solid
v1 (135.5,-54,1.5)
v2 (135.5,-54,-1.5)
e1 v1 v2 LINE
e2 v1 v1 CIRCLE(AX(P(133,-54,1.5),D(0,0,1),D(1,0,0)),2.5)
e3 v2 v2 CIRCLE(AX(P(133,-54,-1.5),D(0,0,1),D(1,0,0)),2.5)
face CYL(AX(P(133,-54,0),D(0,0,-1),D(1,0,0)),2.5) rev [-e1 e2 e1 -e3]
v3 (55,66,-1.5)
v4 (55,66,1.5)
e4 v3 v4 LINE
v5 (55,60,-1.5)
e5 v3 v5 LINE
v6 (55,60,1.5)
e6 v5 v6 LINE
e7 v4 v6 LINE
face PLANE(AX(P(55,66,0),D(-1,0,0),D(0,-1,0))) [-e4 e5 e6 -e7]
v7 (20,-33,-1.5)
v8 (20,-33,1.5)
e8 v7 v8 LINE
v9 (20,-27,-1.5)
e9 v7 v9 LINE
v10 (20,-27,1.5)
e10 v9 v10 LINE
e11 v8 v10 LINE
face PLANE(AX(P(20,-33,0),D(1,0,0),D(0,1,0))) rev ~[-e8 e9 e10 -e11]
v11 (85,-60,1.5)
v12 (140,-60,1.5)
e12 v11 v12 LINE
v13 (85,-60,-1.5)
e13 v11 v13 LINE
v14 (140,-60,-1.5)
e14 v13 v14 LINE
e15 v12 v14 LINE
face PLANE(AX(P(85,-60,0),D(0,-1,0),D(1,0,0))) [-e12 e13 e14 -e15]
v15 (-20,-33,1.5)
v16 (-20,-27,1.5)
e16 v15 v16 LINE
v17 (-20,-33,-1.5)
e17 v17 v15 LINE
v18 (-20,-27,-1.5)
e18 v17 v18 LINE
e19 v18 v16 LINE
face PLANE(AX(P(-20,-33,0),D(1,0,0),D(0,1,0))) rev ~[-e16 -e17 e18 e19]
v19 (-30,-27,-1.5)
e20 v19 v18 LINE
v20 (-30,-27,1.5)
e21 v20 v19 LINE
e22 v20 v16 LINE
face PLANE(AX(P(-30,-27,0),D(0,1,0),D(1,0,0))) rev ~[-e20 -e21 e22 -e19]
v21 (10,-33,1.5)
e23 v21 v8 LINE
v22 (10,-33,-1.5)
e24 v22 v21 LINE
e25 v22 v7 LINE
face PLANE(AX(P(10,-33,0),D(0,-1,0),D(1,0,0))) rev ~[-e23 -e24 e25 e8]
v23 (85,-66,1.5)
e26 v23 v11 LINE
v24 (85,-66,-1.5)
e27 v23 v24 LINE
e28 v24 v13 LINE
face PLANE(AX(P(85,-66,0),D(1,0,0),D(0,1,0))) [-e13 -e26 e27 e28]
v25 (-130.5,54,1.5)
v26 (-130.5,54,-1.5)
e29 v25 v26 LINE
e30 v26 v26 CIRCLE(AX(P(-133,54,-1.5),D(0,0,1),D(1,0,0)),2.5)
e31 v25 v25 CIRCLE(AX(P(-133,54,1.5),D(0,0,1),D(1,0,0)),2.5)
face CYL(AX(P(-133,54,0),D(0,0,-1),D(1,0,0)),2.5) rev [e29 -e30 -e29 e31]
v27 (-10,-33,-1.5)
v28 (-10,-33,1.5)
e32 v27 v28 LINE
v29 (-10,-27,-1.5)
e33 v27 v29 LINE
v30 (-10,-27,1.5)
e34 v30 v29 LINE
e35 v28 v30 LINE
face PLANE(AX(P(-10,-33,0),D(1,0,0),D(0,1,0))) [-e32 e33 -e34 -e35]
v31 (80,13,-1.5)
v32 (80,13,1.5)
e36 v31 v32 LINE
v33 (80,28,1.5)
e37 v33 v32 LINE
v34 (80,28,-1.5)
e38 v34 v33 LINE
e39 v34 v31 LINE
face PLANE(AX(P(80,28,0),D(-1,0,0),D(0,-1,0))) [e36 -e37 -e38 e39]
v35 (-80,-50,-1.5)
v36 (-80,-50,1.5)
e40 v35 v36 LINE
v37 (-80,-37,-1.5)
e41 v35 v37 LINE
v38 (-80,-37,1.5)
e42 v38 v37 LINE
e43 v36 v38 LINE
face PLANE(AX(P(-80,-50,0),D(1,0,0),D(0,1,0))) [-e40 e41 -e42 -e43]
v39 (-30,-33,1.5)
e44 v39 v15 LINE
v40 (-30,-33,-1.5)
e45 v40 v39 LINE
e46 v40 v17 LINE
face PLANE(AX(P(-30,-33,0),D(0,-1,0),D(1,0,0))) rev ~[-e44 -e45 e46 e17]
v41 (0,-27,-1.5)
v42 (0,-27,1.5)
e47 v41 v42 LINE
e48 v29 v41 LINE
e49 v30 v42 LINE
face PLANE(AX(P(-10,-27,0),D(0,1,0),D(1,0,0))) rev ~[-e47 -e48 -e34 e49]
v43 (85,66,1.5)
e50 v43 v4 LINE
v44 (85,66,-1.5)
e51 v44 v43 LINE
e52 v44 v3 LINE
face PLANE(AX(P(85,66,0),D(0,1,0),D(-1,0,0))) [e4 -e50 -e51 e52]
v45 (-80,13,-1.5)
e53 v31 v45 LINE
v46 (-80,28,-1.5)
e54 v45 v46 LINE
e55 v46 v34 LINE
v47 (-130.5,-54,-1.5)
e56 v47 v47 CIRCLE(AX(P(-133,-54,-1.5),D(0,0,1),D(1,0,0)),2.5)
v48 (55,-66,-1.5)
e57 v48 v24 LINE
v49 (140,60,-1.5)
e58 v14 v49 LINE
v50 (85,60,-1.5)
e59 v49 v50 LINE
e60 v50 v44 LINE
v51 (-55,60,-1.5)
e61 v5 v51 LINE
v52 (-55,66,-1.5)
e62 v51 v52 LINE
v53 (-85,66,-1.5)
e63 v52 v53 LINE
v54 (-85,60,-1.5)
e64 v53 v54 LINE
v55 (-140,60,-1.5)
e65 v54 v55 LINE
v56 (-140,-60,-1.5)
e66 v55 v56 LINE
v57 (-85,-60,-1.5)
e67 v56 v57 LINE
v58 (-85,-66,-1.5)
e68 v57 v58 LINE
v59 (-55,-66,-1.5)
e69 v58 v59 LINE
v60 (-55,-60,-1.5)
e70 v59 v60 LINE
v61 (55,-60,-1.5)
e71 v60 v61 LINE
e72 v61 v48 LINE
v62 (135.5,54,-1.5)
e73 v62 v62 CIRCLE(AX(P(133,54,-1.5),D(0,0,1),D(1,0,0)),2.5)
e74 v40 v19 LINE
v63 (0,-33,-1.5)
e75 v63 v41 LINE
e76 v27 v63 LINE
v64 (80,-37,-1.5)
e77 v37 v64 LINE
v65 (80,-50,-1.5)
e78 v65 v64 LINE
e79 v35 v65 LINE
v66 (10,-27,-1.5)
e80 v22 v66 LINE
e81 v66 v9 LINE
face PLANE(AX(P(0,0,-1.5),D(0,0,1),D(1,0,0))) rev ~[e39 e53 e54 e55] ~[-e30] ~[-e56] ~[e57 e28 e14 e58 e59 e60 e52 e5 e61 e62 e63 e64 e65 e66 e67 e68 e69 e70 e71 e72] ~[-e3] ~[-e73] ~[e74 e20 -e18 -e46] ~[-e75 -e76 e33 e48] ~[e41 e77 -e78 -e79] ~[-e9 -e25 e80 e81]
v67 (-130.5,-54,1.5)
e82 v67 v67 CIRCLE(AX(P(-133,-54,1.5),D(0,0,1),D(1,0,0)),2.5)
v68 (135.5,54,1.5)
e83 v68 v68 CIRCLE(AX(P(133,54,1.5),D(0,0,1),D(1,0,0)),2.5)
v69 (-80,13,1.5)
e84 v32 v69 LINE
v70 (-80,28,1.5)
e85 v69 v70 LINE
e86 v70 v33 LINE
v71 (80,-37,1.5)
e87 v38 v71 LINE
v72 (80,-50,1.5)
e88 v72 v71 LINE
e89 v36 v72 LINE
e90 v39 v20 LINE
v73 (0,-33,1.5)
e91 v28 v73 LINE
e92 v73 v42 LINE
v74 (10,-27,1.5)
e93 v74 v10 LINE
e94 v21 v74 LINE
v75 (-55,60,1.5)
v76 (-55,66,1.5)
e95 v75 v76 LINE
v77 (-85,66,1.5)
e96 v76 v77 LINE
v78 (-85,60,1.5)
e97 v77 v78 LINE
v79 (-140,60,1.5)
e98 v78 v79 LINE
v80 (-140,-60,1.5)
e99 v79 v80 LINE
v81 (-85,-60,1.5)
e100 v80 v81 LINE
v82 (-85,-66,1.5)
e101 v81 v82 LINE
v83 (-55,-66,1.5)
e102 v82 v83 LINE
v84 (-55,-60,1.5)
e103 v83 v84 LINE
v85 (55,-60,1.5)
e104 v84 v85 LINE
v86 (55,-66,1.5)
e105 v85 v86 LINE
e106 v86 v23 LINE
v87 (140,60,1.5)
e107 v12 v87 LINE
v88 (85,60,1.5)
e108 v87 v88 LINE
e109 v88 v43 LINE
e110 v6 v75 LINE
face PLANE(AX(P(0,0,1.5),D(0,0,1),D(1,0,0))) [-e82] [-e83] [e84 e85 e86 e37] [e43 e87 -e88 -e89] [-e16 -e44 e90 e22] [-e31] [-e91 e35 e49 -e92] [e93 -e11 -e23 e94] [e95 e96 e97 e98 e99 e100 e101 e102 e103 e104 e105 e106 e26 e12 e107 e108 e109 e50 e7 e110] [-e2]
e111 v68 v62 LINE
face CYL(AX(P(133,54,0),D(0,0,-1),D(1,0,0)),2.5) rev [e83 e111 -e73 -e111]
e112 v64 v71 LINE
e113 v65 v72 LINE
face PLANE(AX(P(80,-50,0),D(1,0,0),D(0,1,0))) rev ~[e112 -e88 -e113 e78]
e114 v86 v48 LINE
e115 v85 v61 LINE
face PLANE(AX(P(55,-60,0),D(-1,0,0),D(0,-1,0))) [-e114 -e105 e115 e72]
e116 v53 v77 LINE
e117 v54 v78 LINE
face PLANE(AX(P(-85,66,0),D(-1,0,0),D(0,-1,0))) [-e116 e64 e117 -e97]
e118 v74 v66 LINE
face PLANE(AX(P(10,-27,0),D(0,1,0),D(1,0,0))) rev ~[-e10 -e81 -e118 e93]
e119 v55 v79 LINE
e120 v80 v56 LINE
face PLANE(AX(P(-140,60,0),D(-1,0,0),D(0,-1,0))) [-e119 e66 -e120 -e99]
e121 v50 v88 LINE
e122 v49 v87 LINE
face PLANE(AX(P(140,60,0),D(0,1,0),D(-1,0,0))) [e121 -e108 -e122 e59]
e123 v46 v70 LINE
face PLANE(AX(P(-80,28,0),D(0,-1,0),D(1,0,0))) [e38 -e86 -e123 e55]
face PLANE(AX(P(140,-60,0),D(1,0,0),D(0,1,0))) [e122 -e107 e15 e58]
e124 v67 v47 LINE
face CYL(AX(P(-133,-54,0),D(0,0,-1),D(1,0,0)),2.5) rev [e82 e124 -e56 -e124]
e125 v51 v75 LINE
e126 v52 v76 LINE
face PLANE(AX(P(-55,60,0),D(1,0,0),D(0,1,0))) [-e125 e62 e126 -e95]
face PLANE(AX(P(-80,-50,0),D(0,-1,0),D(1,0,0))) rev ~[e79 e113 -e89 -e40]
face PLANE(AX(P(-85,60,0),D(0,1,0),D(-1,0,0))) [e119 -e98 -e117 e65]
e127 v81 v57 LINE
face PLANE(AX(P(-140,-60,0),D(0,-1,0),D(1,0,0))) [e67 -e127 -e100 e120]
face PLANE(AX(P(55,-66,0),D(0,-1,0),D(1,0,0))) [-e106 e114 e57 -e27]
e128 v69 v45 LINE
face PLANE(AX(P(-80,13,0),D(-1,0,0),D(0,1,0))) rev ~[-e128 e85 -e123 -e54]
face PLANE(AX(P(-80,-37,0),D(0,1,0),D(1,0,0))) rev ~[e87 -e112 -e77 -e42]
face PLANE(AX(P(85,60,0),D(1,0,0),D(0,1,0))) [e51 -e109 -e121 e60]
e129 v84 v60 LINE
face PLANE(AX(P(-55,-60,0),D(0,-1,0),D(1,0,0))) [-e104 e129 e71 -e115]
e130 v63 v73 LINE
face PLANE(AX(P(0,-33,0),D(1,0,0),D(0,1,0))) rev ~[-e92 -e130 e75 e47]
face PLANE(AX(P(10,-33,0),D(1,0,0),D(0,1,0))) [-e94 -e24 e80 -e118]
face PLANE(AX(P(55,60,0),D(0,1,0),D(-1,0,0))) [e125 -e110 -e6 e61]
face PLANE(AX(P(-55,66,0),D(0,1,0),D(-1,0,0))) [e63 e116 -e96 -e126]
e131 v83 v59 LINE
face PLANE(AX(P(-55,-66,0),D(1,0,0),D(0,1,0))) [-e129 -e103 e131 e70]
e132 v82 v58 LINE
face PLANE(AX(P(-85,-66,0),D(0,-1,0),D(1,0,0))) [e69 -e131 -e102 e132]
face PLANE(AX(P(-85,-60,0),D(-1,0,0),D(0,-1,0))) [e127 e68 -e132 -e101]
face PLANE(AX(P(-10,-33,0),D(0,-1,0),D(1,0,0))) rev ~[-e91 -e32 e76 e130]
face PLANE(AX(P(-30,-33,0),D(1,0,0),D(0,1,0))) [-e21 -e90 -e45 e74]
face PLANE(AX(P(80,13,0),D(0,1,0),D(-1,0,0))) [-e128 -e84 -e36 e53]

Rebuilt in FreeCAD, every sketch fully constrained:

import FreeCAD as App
import Part
import Sketcher

V = App.Vector
Q = App.Units.Quantity


def add_polygon(sketch, points):
    """Adds a closed chain of lines whose ends are joined by coincident constraints."""
    first, n = sketch.GeometryCount, len(points)
    for a, b in zip(points, points[1:] + points[:1]):
        sketch.addGeometry(Part.LineSegment(App.Vector(*a, 0), App.Vector(*b, 0)), False)
    for i in range(n):
        sketch.addConstraint(Sketcher.Constraint("Coincident", first + i, 2, first + (i + 1) % n, 1))

doc = App.newDocument("Part")
body = doc.addObject("PartDesign::Body", "Body")

sketch1 = body.newObject("Sketcher::SketchObject", "Sketch")
sketch1.AttachmentSupport = (doc.getObject("XY_Plane"), [""])
sketch1.MapMode = "FlatFace"
add_polygon(sketch1, [(140, -60), (140, 60), (85, 60), (85, 66), (55, 66), (55, 60), (-55, 60), (-55, 66), (-85, 66), (-85, 60), (-140, 60), (-140, -60), (-85, -60), (-85, -66), (-55, -66), (-55, -60), (55, -60), (55, -66), (85, -66), (85, -60)])
sketch1.addGeometry(Part.Circle(V(-133, -54, 0), V(0, 0, 1), 2.5), False)
add_polygon(sketch1, [(-20, -33), (-30, -33), (-30, -27), (-20, -27)])
add_polygon(sketch1, [(0, -33), (-10, -33), (-10, -27), (0, -27)])
add_polygon(sketch1, [(80, -50), (-80, -50), (-80, -37), (80, -37)])
add_polygon(sketch1, [(20, -33), (10, -33), (10, -27), (20, -27)])
sketch1.addGeometry(Part.Circle(V(133, -54, 0), V(0, 0, 1), 2.5), False)
sketch1.addGeometry(Part.Circle(V(-133, 54, 0), V(0, 0, 1), 2.5), False)
add_polygon(sketch1, [(80, 28), (80, 13), (-80, 13), (-80, 28)])
sketch1.addGeometry(Part.Circle(V(133, 54, 0), V(0, 0, 1), 2.5), False)
sketch1.addConstraint(Sketcher.Constraint("Vertical", 0))
sketch1.addConstraint(Sketcher.Constraint("Horizontal", 1))
sketch1.addConstraint(Sketcher.Constraint("Vertical", 2))
sketch1.addConstraint(Sketcher.Constraint("Horizontal", 3))
sketch1.addConstraint(Sketcher.Constraint("Vertical", 4))
sketch1.addConstraint(Sketcher.Constraint("Horizontal", 5))
sketch1.addConstraint(Sketcher.Constraint("Vertical", 6))
sketch1.addConstraint(Sketcher.Constraint("Horizontal", 7))
sketch1.addConstraint(Sketcher.Constraint("Vertical", 8))
sketch1.addConstraint(Sketcher.Constraint("Horizontal", 9))
sketch1.addConstraint(Sketcher.Constraint("Vertical", 10))
sketch1.addConstraint(Sketcher.Constraint("Horizontal", 11))
sketch1.addConstraint(Sketcher.Constraint("Vertical", 12))
sketch1.addConstraint(Sketcher.Constraint("Horizontal", 13))
sketch1.addConstraint(Sketcher.Constraint("Vertical", 14))
sketch1.addConstraint(Sketcher.Constraint("Horizontal", 15))
sketch1.addConstraint(Sketcher.Constraint("Vertical", 16))
sketch1.addConstraint(Sketcher.Constraint("Horizontal", 17))
sketch1.addConstraint(Sketcher.Constraint("Vertical", 18))
sketch1.addConstraint(Sketcher.Constraint("Horizontal", 19))
sketch1.addConstraint(Sketcher.Constraint("Horizontal", 21))
sketch1.addConstraint(Sketcher.Constraint("Vertical", 22))
sketch1.addConstraint(Sketcher.Constraint("Horizontal", 23))
sketch1.addConstraint(Sketcher.Constraint("Vertical", 24))
sketch1.addConstraint(Sketcher.Constraint("Horizontal", 25))
sketch1.addConstraint(Sketcher.Constraint("Vertical", 26))
sketch1.addConstraint(Sketcher.Constraint("Horizontal", 27))
sketch1.addConstraint(Sketcher.Constraint("Vertical", 28))
sketch1.addConstraint(Sketcher.Constraint("Horizontal", 29))
sketch1.addConstraint(Sketcher.Constraint("Vertical", 30))
sketch1.addConstraint(Sketcher.Constraint("Horizontal", 31))
sketch1.addConstraint(Sketcher.Constraint("Vertical", 32))
sketch1.addConstraint(Sketcher.Constraint("Horizontal", 33))
sketch1.addConstraint(Sketcher.Constraint("Vertical", 34))
sketch1.addConstraint(Sketcher.Constraint("Horizontal", 35))
sketch1.addConstraint(Sketcher.Constraint("Vertical", 36))
sketch1.addConstraint(Sketcher.Constraint("Vertical", 39))
sketch1.addConstraint(Sketcher.Constraint("Horizontal", 40))
sketch1.addConstraint(Sketcher.Constraint("Vertical", 41))
sketch1.addConstraint(Sketcher.Constraint("Horizontal", 42))
sketch1.addConstraint(Sketcher.Constraint("Equal", 20, 37))
sketch1.addConstraint(Sketcher.Constraint("Equal", 37, 38))
sketch1.addConstraint(Sketcher.Constraint("Equal", 38, 43))
sketch1.addConstraint(Sketcher.Constraint("Symmetric", 37, 3, 38, 3, -1, 1))
sketch1.addConstraint(Sketcher.Constraint("Symmetric", 20, 3, 43, 3, -1, 1))
sketch1.addConstraint(Sketcher.Constraint("Symmetric", 0, 2, 10, 2, -1, 1))
sketch1.addConstraint(Sketcher.Constraint("Symmetric", 2, 2, 12, 2, -1, 1))
sketch1.addConstraint(Sketcher.Constraint("Symmetric", 4, 2, 14, 2, -1, 1))
sketch1.addConstraint(Sketcher.Constraint("Symmetric", 6, 2, 16, 2, -1, 1))
sketch1.addConstraint(Sketcher.Constraint("Symmetric", 8, 2, 18, 2, -1, 1))
sketch1.addConstraint(Sketcher.Constraint("Symmetric", 20, 3, 37, 3, -2))
sketch1.addConstraint(Sketcher.Constraint("Symmetric", 3, 2, 6, 2, -2))
sketch1.addConstraint(Sketcher.Constraint("Symmetric", 1, 2, 8, 2, -2))
sketch1.addConstraint(Sketcher.Constraint("Symmetric", 25, 2, 33, 2, -2))
sketch1.addConstraint(Sketcher.Constraint("Symmetric", 23, 2, 35, 2, -2))
sketch1.addConstraint(Sketcher.Constraint("PointOnObject", 27, 2, -2))
sketch1.addConstraint(Sketcher.Constraint("Horizontal", 1, 2, 4, 2))
sketch1.addConstraint(Sketcher.Constraint("Horizontal", 24, 2, 25, 2))
sketch1.addConstraint(Sketcher.Constraint("Horizontal", 23, 2, 26, 2))
sketch1.addConstraint(Sketcher.Constraint("Vertical", 32, 2, 39, 2))
sketch1.addConstraint(Sketcher.Constraint("Vertical", 30, 2, 40, 2))
sketch1.addConstraint(Sketcher.Constraint("Equal", 23, 25))
sketch1.addConstraint(Sketcher.Constraint("Equal", 27, 33))
sketch1.addConstraint(Sketcher.Constraint("Equal", 18, 22))
sketch1.addConstraint(Sketcher.Constraint("Diameter", 20, Q("5 mm")))
sketch1.addConstraint(Sketcher.Constraint("DistanceX", 1, 2, 1, 1, Q("55 mm")))
sketch1.addConstraint(Sketcher.Constraint("DistanceX", 3, 2, 3, 1, Q("30 mm")))
sketch1.addConstraint(Sketcher.Constraint("DistanceX", 5, 2, 5, 1, Q("110 mm")))
sketch1.addConstraint(Sketcher.Constraint("DistanceX", 21, 2, 21, 1, Q("10 mm")))
sketch1.addConstraint(Sketcher.Constraint("DistanceX", 29, 2, 29, 1, Q("160 mm")))
sketch1.addConstraint(Sketcher.Constraint("DistanceY", 0, 1, 0, 2, Q("120 mm")))
sketch1.addConstraint(Sketcher.Constraint("DistanceY", 2, 1, 2, 2, Q("6 mm")))
sketch1.addConstraint(Sketcher.Constraint("DistanceY", 30, 1, 30, 2, Q("13 mm")))
sketch1.addConstraint(Sketcher.Constraint("DistanceY", 39, 2, 39, 1, Q("15 mm")))
sketch1.addConstraint(Sketcher.Constraint("DistanceX", 20, 3, -1, 1, Q("133 mm")))
sketch1.addConstraint(Sketcher.Constraint("DistanceY", 20, 3, -1, 1, Q("54 mm")))
sketch1.addConstraint(Sketcher.Constraint("DistanceY", 21, 2, -1, 1, Q("33 mm")))
sketch1.addConstraint(Sketcher.Constraint("DistanceX", 29, 2, -1, 1, Q("80 mm")))
sketch1.addConstraint(Sketcher.Constraint("DistanceY", 29, 2, -1, 1, Q("50 mm")))
sketch1.addConstraint(Sketcher.Constraint("DistanceY", -1, 1, 39, 2, Q("13 mm")))
pad1 = body.newObject("PartDesign::Pad", "Pad")
pad1.Profile = sketch1
pad1.Length = 3
pad1.Midplane = True

doc.recompute()
